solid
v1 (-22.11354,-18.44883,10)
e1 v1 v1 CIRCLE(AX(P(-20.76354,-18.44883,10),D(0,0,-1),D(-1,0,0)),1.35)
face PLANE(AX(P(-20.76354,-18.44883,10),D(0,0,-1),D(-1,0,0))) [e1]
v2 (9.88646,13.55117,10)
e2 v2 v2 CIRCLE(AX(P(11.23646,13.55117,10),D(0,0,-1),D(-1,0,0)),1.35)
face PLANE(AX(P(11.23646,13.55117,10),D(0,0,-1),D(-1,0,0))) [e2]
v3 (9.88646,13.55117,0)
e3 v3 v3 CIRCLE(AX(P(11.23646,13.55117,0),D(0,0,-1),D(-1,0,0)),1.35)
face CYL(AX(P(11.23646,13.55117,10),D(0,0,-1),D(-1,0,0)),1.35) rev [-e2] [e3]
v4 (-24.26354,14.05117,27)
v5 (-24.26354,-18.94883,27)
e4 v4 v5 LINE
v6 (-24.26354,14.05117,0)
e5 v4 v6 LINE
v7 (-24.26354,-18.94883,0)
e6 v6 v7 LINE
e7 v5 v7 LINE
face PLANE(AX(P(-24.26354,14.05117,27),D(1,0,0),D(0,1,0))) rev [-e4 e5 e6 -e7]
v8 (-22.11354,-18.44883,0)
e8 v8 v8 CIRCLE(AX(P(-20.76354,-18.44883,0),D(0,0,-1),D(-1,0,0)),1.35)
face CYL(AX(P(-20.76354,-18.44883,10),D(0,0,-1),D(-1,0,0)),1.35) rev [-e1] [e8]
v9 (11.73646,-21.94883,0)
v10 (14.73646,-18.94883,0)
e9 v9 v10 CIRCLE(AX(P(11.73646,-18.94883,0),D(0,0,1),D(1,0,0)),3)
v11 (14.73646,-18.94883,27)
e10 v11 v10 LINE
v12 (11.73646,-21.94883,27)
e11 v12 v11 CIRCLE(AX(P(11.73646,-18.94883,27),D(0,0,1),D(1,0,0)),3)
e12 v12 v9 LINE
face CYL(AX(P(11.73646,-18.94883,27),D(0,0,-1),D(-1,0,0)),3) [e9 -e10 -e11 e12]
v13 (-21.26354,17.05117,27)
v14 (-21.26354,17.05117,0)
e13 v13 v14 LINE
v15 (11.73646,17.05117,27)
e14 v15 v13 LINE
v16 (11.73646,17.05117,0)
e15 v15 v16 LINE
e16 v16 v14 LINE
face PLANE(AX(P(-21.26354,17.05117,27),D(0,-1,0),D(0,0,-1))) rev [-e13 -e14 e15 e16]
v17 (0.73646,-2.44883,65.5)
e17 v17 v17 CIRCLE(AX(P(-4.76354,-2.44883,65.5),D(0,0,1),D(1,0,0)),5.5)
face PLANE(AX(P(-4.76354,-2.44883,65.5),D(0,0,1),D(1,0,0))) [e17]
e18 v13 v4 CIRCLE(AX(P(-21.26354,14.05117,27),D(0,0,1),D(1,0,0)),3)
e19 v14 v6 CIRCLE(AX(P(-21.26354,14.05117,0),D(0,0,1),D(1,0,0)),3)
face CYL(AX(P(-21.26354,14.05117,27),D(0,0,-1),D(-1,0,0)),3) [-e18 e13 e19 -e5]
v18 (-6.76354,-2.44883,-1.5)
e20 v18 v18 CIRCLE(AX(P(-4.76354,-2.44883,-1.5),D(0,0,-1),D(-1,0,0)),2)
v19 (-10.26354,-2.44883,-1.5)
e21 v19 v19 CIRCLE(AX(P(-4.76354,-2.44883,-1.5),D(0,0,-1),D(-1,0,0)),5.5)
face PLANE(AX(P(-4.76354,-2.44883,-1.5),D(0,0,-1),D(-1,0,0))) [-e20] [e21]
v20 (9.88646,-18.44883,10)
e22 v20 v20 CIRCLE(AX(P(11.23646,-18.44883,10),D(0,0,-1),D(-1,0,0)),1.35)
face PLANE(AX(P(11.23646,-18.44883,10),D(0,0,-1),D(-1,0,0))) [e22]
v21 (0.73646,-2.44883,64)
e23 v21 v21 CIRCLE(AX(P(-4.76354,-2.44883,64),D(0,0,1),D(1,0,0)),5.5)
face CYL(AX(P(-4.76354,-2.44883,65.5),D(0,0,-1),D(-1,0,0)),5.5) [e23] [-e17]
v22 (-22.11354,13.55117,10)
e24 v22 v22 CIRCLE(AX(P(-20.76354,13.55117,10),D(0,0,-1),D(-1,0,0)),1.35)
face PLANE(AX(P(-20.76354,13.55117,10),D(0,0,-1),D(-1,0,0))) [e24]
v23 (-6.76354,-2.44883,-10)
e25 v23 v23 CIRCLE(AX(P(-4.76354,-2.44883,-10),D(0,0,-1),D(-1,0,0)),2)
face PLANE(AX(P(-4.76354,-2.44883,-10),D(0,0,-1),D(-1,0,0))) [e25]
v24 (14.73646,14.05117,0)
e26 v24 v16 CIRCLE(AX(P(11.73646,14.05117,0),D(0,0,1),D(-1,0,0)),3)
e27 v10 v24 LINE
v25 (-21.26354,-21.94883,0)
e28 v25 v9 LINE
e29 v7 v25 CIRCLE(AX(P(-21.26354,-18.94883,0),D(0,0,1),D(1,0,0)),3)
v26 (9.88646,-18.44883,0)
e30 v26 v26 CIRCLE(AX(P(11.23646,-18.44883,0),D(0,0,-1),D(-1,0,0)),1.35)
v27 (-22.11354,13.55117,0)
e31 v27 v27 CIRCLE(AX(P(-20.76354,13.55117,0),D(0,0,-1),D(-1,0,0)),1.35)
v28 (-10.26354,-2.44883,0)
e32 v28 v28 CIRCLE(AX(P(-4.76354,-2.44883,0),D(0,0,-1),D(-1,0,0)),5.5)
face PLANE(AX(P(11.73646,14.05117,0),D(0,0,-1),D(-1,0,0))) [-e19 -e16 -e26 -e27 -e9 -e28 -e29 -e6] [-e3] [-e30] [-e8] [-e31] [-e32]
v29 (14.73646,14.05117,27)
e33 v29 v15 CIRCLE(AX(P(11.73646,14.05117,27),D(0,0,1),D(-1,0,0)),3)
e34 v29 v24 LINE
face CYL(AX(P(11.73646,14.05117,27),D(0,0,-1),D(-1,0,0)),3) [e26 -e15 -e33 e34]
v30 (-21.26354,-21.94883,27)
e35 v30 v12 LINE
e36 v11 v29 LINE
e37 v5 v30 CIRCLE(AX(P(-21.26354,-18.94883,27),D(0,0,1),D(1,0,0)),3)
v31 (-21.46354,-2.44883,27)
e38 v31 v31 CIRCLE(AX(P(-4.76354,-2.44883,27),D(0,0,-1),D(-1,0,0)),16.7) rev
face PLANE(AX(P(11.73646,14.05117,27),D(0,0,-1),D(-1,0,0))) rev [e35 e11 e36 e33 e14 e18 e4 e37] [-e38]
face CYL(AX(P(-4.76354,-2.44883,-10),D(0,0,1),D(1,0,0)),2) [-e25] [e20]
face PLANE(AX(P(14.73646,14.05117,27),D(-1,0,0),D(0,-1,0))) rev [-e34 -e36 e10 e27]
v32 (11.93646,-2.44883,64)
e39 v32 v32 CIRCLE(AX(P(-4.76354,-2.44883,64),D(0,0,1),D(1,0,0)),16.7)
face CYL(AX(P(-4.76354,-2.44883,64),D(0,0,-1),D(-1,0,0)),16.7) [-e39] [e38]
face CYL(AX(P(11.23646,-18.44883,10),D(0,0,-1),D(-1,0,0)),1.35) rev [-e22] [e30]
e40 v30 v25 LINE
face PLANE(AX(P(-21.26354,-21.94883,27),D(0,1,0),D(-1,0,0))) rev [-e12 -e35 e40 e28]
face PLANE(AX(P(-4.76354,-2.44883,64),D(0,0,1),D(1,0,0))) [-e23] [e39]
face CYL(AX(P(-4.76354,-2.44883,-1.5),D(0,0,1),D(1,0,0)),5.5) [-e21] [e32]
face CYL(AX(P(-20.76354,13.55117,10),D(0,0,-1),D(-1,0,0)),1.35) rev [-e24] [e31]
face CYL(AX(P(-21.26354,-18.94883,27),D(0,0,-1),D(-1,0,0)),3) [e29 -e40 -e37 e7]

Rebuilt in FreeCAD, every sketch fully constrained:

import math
import FreeCAD as App
import Part
import Sketcher
Q = App.Units.Quantity

doc = App.newDocument("Part")
params = doc.addObject("Spreadsheet::Sheet", "Params")
for row, (alias, value) in enumerate([
    ("sketch1_radius", "3 mm"),
    ("sketch1_width", "33 mm"),
    ("pad1_length", "27 mm"),
    ("sketch2_diameter", "33.4 mm"),
    ("pad2_length", "37 mm"),
    ("sketch3_diameter", "11 mm"),
    ("pad3_length", "1.5 mm"),
    ("sketch4_diameter", "2.7 mm"),
    ("pocket1_length", "10 mm"),
    ("sketch5_diameter", "11 mm"),
    ("pad4_length", "1.5 mm"),
    ("sketch6_diameter", "4 mm"),
    ("pad5_length", "8.5 mm"),
], start=1):
    params.set(f"A{row}", alias)
    params.set(f"B{row}", "=" + value)
    params.setAlias(f"B{row}", alias)

body = doc.addObject("PartDesign::Body", "Body")

# Sketch on XY plane
sketch1 = body.newObject("Sketcher::SketchObject", "Sketch")
sketch1.AttachmentSupport = (doc.getObject("XY_Plane"), [""])
sketch1.MapMode = "FlatFace"
sketch1.addGeometry([
    Part.LineSegment(App.Vector(11.7, 17.1, 0), App.Vector(-21.3, 17.1, 0)),  # 0
    Part.ArcOfCircle(Part.Circle(App.Vector(-21.3, 14.1, 0), App.Vector(0, 0, 1), 3), math.radians(90), math.radians(180)),  # 1
    Part.LineSegment(App.Vector(-24.3, 14.1, 0), App.Vector(-24.3, -18.9, 0)),  # 2
    Part.ArcOfCircle(Part.Circle(App.Vector(-21.3, -18.9, 0), App.Vector(0, 0, 1), 3), math.radians(180), math.radians(270)),  # 3
    Part.LineSegment(App.Vector(-21.3, -21.9, 0), App.Vector(11.7, -21.9, 0)),  # 4
    Part.ArcOfCircle(Part.Circle(App.Vector(11.7, -18.9, 0), App.Vector(0, 0, 1), 3), math.radians(-90), math.radians(0)),  # 5
    Part.LineSegment(App.Vector(14.7, -18.9, 0), App.Vector(14.7, 14.1, 0)),  # 6
    Part.ArcOfCircle(Part.Circle(App.Vector(11.7, 14.1, 0), App.Vector(0, 0, 1), 3), math.radians(0), math.radians(90)),  # 7
], False)
sketch1.addConstraint([
    Sketcher.Constraint("Tangent", 0, 2, 1, 1),
    Sketcher.Constraint("Tangent", 1, 2, 2, 1),
    Sketcher.Constraint("Tangent", 2, 2, 3, 1),
    Sketcher.Constraint("Tangent", 3, 2, 4, 1),
    Sketcher.Constraint("Tangent", 4, 2, 5, 1),
    Sketcher.Constraint("Tangent", 5, 2, 6, 1),
    Sketcher.Constraint("Tangent", 6, 2, 7, 1),
    Sketcher.Constraint("Tangent", 7, 2, 0, 1),
    Sketcher.Constraint("Horizontal", 0),
    Sketcher.Constraint("Vertical", 2),
    Sketcher.Constraint("Horizontal", 4),
    Sketcher.Constraint("Vertical", 6),
    Sketcher.Constraint("Equal", 1, 3),
    Sketcher.Constraint("Equal", 3, 5),
    Sketcher.Constraint("Equal", 5, 7),
    Sketcher.Constraint("Equal", 4, 2),
    Sketcher.Constraint("Radius", 1, Q("3 mm")),
    Sketcher.Constraint("DistanceX", 0, 2, 0, 1, Q("33 mm")),
    Sketcher.Constraint("DistanceX", 1, 3, -1, 1, Q("21.26354 mm")),
    Sketcher.Constraint("DistanceY", -1, 1, 1, 3, Q("14.05117 mm")),
])
sketch1.setExpression("Constraints[16]", "Params.sketch1_radius")
sketch1.setExpression("Constraints[17]", "Params.sketch1_width")
pad1 = body.newObject("PartDesign::Pad", "Pad")
pad1.Profile = sketch1
pad1.setExpression("Length", "Params.pad1_length")

# Sketch on XY plane
sketch2 = body.newObject("Sketcher::SketchObject", "Sketch001")
sketch2.AttachmentSupport = (doc.getObject("XY_Plane"), [""])
sketch2.MapMode = "FlatFace"
sketch2.AttachmentOffset = App.Placement(App.Vector(0, 0, 27), App.Rotation())
sketch2.addGeometry(Part.Circle(App.Vector(-5, -2, 0), App.Vector(0, 0, 1), 17), False)
sketch2.addConstraint([
    Sketcher.Constraint("Diameter", 0, Q("33.4 mm")),
    Sketcher.Constraint("DistanceX", 0, 3, -1, 1, Q("4.76354 mm")),
    Sketcher.Constraint("DistanceY", 0, 3, -1, 1, Q("2.44883 mm")),
])
sketch2.setExpression("Constraints[0]", "Params.sketch2_diameter")
pad2 = body.newObject("PartDesign::Pad", "Pad001")
pad2.Profile = sketch2
pad2.setExpression("Length", "Params.pad2_length")

# Sketch on XY plane
sketch3 = body.newObject("Sketcher::SketchObject", "Sketch002")
sketch3.AttachmentSupport = (doc.getObject("XY_Plane"), [""])
sketch3.MapMode = "FlatFace"
sketch3.AttachmentOffset = App.Placement(App.Vector(0, 0, 64), App.Rotation())
sketch3.addGeometry(Part.Circle(App.Vector(-5, -2, 0), App.Vector(0, 0, 1), 6), False)
sketch3.addConstraint([
    Sketcher.Constraint("Diameter", 0, Q("11 mm")),
    Sketcher.Constraint("DistanceX", 0, 3, -1, 1, Q("4.76354 mm")),
    Sketcher.Constraint("DistanceY", 0, 3, -1, 1, Q("2.44883 mm")),
])
sketch3.setExpression("Constraints[0]", "Params.sketch3_diameter")
pad3 = body.newObject("PartDesign::Pad", "Pad002")
pad3.Profile = sketch3
pad3.setExpression("Length", "Params.pad3_length")

# Sketch on XY plane
sketch4 = body.newObject("Sketcher::SketchObject", "Sketch003")
sketch4.AttachmentSupport = (doc.getObject("XY_Plane"), [""])
sketch4.MapMode = "FlatFace"
sketch4.addGeometry([
    Part.Circle(App.Vector(11.2, 13.6, 0), App.Vector(0, 0, 1), 1.4),
    Part.Circle(App.Vector(-20.8, 13.6, 0), App.Vector(0, 0, 1), 1.4),
    Part.Circle(App.Vector(-20.8, -18.4, 0), App.Vector(0, 0, 1), 1.4),
    Part.Circle(App.Vector(11.2, -18.4, 0), App.Vector(0, 0, 1), 1.4),
], False)
sketch4.addConstraint([
    Sketcher.Constraint("Equal", 0, 1),
    Sketcher.Constraint("Equal", 1, 2),
    Sketcher.Constraint("Equal", 2, 3),
    Sketcher.Constraint("Horizontal", 0, 3, 1, 3),
    Sketcher.Constraint("Horizontal", 2, 3, 3, 3),
    Sketcher.Constraint("Vertical", 1, 3, 2, 3),
    Sketcher.Constraint("Vertical", 0, 3, 3, 3),
    Sketcher.Constraint("Diameter", 0, Q("2.7 mm")),
    Sketcher.Constraint("DistanceX", 1, 3, 0, 3, Q("32 mm")),
    Sketcher.Constraint("DistanceY", 2, 3, 1, 3, Q("32 mm")),
    Sketcher.Constraint("DistanceX", -1, 1, 0, 3, Q("11.23646 mm")),
    Sketcher.Constraint("DistanceY", -1, 1, 0, 3, Q("13.55117 mm")),
])
sketch4.setExpression("Constraints[7]", "Params.sketch4_diameter")
pocket1 = body.newObject("PartDesign::Pocket", "Pocket")
pocket1.Profile = sketch4
pocket1.setExpression("Length", "Params.pocket1_length")
pocket1.Reversed = True

# Sketch on XY plane
sketch5 = body.newObject("Sketcher::SketchObject", "Sketch004")
sketch5.AttachmentSupport = (doc.getObject("XY_Plane"), [""])
sketch5.MapMode = "FlatFace"
sketch5.AttachmentOffset = App.Placement(App.Vector(0, 0, -1.5), App.Rotation())
sketch5.addGeometry(Part.Circle(App.Vector(-5, -2, 0), App.Vector(0, 0, 1), 6), False)
sketch5.addConstraint([
    Sketcher.Constraint("Diameter", 0, Q("11 mm")),
    Sketcher.Constraint("DistanceX", 0, 3, -1, 1, Q("4.76354 mm")),
    Sketcher.Constraint("DistanceY", 0, 3, -1, 1, Q("2.44883 mm")),
])
sketch5.setExpression("Constraints[0]", "Params.sketch5_diameter")
pad4 = body.newObject("PartDesign::Pad", "Pad003")
pad4.Profile = sketch5
pad4.setExpression("Length", "Params.pad4_length")

# Sketch on XY plane
sketch6 = body.newObject("Sketcher::SketchObject", "Sketch005")
sketch6.AttachmentSupport = (doc.getObject("XY_Plane"), [""])
sketch6.MapMode = "FlatFace"
sketch6.AttachmentOffset = App.Placement(App.Vector(0, 0, -1.5), App.Rotation())
sketch6.addGeometry(Part.Circle(App.Vector(-4.8, -2.4, 0), App.Vector(0, 0, 1), 2), False)
sketch6.addConstraint([
    Sketcher.Constraint("Diameter", 0, Q("4 mm")),
    Sketcher.Constraint("DistanceX", 0, 3, -1, 1, Q("4.76354 mm")),
    Sketcher.Constraint("DistanceY", 0, 3, -1, 1, Q("2.44883 mm")),
])
sketch6.setExpression("Constraints[0]", "Params.sketch6_diameter")
pad5 = body.newObject("PartDesign::Pad", "Pad004")
pad5.Profile = sketch6
pad5.setExpression("Length", "Params.pad5_length")
pad5.Reversed = True

doc.recompute()
